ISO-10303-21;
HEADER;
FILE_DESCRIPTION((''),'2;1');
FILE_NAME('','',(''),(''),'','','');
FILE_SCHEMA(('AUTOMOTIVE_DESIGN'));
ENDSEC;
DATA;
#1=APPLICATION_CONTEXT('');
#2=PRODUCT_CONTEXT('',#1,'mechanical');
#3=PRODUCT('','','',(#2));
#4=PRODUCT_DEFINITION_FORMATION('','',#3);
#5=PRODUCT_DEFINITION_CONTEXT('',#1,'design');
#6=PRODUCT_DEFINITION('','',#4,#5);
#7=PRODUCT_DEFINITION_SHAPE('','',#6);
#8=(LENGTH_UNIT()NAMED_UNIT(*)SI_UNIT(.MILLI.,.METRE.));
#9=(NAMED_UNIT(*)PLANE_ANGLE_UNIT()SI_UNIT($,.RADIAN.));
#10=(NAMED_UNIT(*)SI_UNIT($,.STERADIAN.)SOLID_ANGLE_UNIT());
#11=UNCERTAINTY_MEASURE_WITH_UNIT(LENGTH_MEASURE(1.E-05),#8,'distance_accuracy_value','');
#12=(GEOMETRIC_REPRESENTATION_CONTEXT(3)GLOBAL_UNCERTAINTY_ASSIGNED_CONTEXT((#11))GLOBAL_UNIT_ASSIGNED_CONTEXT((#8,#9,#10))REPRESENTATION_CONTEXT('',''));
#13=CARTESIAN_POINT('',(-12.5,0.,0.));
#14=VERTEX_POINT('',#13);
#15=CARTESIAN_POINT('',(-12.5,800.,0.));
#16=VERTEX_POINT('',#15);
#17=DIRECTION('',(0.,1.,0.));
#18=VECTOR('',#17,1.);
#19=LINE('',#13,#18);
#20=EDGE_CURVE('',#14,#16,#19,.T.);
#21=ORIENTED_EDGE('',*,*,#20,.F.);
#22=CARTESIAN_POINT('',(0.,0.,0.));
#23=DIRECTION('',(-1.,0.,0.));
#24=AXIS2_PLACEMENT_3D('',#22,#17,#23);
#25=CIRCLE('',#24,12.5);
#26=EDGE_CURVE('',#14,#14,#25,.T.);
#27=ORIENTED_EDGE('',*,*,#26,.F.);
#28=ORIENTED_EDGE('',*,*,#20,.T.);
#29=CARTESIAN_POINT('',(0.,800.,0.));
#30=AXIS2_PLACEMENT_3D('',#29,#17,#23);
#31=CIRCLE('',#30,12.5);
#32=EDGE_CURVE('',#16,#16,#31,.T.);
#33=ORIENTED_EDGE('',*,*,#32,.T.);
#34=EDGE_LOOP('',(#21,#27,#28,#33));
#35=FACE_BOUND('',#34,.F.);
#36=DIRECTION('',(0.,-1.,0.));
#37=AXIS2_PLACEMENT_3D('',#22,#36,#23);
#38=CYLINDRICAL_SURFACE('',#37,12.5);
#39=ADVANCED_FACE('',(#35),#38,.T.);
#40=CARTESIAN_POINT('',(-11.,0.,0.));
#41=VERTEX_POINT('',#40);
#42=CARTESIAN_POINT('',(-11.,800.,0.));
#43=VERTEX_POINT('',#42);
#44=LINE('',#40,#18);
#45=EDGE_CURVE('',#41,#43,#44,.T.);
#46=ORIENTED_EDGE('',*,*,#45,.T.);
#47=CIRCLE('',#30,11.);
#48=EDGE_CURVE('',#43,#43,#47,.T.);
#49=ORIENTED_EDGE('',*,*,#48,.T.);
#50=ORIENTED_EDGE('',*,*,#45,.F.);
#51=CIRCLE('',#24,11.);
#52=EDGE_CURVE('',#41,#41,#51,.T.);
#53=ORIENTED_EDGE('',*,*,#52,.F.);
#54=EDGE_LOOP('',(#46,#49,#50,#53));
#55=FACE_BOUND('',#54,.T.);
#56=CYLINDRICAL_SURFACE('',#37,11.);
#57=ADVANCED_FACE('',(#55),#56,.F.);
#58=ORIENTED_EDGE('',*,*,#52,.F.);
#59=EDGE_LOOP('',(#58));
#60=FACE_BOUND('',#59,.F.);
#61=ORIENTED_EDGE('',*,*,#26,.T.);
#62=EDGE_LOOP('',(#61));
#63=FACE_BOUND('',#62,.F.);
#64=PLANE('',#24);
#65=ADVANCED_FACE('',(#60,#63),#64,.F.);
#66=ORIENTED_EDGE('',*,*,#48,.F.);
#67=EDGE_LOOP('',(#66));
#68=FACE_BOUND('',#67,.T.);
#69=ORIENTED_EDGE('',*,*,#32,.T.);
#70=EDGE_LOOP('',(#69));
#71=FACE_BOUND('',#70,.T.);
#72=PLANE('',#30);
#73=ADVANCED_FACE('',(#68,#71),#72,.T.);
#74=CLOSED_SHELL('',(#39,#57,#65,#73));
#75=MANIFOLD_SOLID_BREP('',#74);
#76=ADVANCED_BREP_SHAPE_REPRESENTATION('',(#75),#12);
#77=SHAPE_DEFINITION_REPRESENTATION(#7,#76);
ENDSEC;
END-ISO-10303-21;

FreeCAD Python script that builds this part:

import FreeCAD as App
import Part
import Sketcher
Q = App.Units.Quantity

doc = App.newDocument("Part")
body = doc.addObject("PartDesign::Body", "Body")

sketch1 = body.newObject("Sketcher::SketchObject", "Sketch")
sketch1.AttachmentSupport = (doc.getObject("XZ_Plane"), [""])
sketch1.MapMode = "FlatFace"
sketch1.addGeometry(Part.Circle(App.Vector(0, 0, 0), App.Vector(0, 0, 1), 12.5), False)
sketch1.addGeometry(Part.Circle(App.Vector(0, 0, 0), App.Vector(0, 0, 1), 11), False)
sketch1.addConstraint(Sketcher.Constraint("Coincident", 0, 3, -1, 1))
sketch1.addConstraint(Sketcher.Constraint("Coincident", 1, 3, -1, 1))
sketch1.addConstraint(Sketcher.Constraint("Diameter", 0, Q("25 mm")))
sketch1.addConstraint(Sketcher.Constraint("Diameter", 1, Q("22 mm")))
pad1 = body.newObject("PartDesign::Pad", "Pad")
pad1.Profile = sketch1
pad1.Length = 800
pad1.Reversed = True

doc.recompute()
